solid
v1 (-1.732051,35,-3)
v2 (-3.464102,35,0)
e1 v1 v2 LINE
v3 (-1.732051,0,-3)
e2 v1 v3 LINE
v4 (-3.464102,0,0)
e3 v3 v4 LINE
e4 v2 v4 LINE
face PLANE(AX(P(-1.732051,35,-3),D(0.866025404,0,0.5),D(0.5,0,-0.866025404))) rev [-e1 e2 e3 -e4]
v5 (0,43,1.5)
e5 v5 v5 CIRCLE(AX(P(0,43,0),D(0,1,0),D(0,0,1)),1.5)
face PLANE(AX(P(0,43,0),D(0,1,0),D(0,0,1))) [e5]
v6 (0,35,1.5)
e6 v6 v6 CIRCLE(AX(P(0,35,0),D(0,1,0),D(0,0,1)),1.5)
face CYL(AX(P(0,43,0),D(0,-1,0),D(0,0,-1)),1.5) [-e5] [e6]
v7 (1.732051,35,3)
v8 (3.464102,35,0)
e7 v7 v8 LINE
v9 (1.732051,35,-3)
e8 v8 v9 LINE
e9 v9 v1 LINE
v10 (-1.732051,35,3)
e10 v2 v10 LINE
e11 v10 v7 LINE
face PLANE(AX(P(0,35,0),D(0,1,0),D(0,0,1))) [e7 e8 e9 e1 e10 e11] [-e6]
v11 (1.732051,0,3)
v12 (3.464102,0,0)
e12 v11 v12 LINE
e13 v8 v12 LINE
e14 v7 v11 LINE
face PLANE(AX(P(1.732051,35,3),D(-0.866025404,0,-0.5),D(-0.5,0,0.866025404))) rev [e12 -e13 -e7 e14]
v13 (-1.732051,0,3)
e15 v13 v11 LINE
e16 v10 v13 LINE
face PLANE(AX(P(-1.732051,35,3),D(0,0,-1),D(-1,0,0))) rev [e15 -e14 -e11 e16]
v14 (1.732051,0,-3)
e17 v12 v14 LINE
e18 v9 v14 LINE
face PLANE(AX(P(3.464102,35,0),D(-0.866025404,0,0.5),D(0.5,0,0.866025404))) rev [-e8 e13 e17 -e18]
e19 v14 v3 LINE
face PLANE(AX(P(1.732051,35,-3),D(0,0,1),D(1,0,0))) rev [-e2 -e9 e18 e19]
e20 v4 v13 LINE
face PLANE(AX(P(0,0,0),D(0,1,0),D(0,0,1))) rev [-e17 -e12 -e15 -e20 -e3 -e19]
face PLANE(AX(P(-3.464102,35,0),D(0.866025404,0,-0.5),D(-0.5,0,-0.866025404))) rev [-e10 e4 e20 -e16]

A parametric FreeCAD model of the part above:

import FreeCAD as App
import Part
import Sketcher
Q = App.Units.Quantity

doc = App.newDocument("Part")
body = doc.addObject("PartDesign::Body", "Body")

# Sketch on XZ plane
sketch1 = body.newObject("Sketcher::SketchObject", "Sketch")
sketch1.AttachmentSupport = (doc.getObject("XZ_Plane"), [""])
sketch1.MapMode = "FlatFace"
sketch1.addGeometry([
    Part.LineSegment(App.Vector(1.7, 3, 0), App.Vector(3.5, 0, 0)),  # 0
    Part.LineSegment(App.Vector(3.5, 0, 0), App.Vector(1.7, -3, 0)),  # 1
    Part.LineSegment(App.Vector(1.7, -3, 0), App.Vector(-1.7, -3, 0)),  # 2
    Part.LineSegment(App.Vector(-1.7, -3, 0), App.Vector(-3.5, 0, 0)),  # 3
    Part.LineSegment(App.Vector(-3.5, 0, 0), App.Vector(-1.7, 3, 0)),  # 4
    Part.LineSegment(App.Vector(-1.7, 3, 0), App.Vector(1.7, 3, 0)),  # 5
], False)
sketch1.addConstraint([
    Sketcher.Constraint("Coincident", 0, 2, 1, 1),
    Sketcher.Constraint("Coincident", 1, 2, 2, 1),
    Sketcher.Constraint("Coincident", 2, 2, 3, 1),
    Sketcher.Constraint("Coincident", 3, 2, 4, 1),
    Sketcher.Constraint("Coincident", 4, 2, 5, 1),
    Sketcher.Constraint("Coincident", 5, 2, 0, 1),
    Sketcher.Constraint("Horizontal", 2),
    Sketcher.Constraint("Horizontal", 5),
    Sketcher.Constraint("Symmetric", 0, 2, 3, 2, -1, 1),
    Sketcher.Constraint("Symmetric", 1, 2, 4, 2, -1, 1),
    Sketcher.Constraint("PointOnObject", 0, 2, -1),
    Sketcher.Constraint("Parallel", 0, 3),
    Sketcher.Constraint("Vertical", 2, 2, 4, 2),
    Sketcher.Constraint("Angle", 0, Q("-60 deg")),
    Sketcher.Constraint("DistanceY", 1, 2, -1, 1, Q("3 mm")),
    Sketcher.Constraint("DistanceX", 2, 2, 2, 1, Q("3.464102 mm")),
])
pad1 = body.newObject("PartDesign::Pad", "Pad")
pad1.Profile = sketch1
pad1.Length = 35
pad1.Reversed = True

# Sketch on XZ plane
sketch2 = body.newObject("Sketcher::SketchObject", "Sketch001")
sketch2.AttachmentSupport = (doc.getObject("XZ_Plane"), [""])
sketch2.MapMode = "FlatFace"
sketch2.AttachmentOffset = App.Placement(App.Vector(0, 0, -35), App.Rotation())
sketch2.addGeometry(Part.Circle(App.Vector(0, 0, 0), App.Vector(0, 0, 1), 1.5), False)
sketch2.addConstraint([
    Sketcher.Constraint("Coincident", 0, 3, -1, 1),
    Sketcher.Constraint("Diameter", 0, Q("3 mm")),
])
pad2 = body.newObject("PartDesign::Pad", "Pad001")
pad2.Profile = sketch2
pad2.Length = 8
pad2.Reversed = True

doc.recompute()
